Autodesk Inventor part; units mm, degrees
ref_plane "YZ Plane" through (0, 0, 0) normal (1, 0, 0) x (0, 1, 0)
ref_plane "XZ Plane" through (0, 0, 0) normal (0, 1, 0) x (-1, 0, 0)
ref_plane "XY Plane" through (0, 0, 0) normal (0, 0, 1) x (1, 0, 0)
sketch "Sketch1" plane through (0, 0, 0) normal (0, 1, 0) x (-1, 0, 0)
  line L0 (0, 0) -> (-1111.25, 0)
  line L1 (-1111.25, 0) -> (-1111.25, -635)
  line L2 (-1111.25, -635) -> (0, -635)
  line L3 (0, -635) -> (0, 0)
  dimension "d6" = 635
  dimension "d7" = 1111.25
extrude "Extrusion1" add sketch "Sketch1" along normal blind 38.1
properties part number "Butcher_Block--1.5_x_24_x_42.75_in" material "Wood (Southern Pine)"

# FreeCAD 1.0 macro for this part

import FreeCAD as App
import Part
import Sketcher

V = App.Vector
Q = App.Units.Quantity


def add_polygon(sketch, points):
    """Adds a closed chain of lines whose ends are joined by coincident constraints."""
    first, n = sketch.GeometryCount, len(points)
    for a, b in zip(points, points[1:] + points[:1]):
        sketch.addGeometry(Part.LineSegment(App.Vector(*a, 0), App.Vector(*b, 0)), False)
    for i in range(n):
        sketch.addConstraint(Sketcher.Constraint("Coincident", first + i, 2, first + (i + 1) % n, 1))

doc = App.newDocument("Part")
params = doc.addObject("Spreadsheet::Sheet", "Params")
for row, (alias, value) in enumerate([
    ("sketch1_height", "25 in"),
    ("sketch1_width", "43.75 in"),
    ("pad1_length", "1.5 in"),
], start=1):
    params.set(f"A{row}", alias)
    params.set(f"B{row}", "=" + value)
    params.setAlias(f"B{row}", alias)

body = doc.addObject("PartDesign::Body", "Body")

# Sketch on XZ plane
sketch1 = body.newObject("Sketcher::SketchObject", "Sketch")
sketch1.AttachmentSupport = (doc.getObject("XZ_Plane"), [""])
sketch1.MapMode = "FlatFace"
add_polygon(sketch1, [(0, -635), (0, 0), (1111, 0), (1111, -635)])  # lines 0-3
sketch1.addConstraint([
    Sketcher.Constraint("Vertical", 0),
    Sketcher.Constraint("Horizontal", 1),
    Sketcher.Constraint("Vertical", 2),
    Sketcher.Constraint("Horizontal", 3),
    Sketcher.Constraint("Coincident", 0, 2, -1, 1),
    Sketcher.Constraint("DistanceY", 0, 1, 0, 2, Q("25 in")),
    Sketcher.Constraint("DistanceX", 1, 1, 1, 2, Q("43.75 in")),
])
sketch1.setExpression("Constraints[9]", "Params.sketch1_height")
sketch1.setExpression("Constraints[10]", "Params.sketch1_width")
pad1 = body.newObject("PartDesign::Pad", "Pad")
pad1.Profile = sketch1
pad1.setExpression("Length", "Params.pad1_length")
pad1.Reversed = True

doc.recompute()
